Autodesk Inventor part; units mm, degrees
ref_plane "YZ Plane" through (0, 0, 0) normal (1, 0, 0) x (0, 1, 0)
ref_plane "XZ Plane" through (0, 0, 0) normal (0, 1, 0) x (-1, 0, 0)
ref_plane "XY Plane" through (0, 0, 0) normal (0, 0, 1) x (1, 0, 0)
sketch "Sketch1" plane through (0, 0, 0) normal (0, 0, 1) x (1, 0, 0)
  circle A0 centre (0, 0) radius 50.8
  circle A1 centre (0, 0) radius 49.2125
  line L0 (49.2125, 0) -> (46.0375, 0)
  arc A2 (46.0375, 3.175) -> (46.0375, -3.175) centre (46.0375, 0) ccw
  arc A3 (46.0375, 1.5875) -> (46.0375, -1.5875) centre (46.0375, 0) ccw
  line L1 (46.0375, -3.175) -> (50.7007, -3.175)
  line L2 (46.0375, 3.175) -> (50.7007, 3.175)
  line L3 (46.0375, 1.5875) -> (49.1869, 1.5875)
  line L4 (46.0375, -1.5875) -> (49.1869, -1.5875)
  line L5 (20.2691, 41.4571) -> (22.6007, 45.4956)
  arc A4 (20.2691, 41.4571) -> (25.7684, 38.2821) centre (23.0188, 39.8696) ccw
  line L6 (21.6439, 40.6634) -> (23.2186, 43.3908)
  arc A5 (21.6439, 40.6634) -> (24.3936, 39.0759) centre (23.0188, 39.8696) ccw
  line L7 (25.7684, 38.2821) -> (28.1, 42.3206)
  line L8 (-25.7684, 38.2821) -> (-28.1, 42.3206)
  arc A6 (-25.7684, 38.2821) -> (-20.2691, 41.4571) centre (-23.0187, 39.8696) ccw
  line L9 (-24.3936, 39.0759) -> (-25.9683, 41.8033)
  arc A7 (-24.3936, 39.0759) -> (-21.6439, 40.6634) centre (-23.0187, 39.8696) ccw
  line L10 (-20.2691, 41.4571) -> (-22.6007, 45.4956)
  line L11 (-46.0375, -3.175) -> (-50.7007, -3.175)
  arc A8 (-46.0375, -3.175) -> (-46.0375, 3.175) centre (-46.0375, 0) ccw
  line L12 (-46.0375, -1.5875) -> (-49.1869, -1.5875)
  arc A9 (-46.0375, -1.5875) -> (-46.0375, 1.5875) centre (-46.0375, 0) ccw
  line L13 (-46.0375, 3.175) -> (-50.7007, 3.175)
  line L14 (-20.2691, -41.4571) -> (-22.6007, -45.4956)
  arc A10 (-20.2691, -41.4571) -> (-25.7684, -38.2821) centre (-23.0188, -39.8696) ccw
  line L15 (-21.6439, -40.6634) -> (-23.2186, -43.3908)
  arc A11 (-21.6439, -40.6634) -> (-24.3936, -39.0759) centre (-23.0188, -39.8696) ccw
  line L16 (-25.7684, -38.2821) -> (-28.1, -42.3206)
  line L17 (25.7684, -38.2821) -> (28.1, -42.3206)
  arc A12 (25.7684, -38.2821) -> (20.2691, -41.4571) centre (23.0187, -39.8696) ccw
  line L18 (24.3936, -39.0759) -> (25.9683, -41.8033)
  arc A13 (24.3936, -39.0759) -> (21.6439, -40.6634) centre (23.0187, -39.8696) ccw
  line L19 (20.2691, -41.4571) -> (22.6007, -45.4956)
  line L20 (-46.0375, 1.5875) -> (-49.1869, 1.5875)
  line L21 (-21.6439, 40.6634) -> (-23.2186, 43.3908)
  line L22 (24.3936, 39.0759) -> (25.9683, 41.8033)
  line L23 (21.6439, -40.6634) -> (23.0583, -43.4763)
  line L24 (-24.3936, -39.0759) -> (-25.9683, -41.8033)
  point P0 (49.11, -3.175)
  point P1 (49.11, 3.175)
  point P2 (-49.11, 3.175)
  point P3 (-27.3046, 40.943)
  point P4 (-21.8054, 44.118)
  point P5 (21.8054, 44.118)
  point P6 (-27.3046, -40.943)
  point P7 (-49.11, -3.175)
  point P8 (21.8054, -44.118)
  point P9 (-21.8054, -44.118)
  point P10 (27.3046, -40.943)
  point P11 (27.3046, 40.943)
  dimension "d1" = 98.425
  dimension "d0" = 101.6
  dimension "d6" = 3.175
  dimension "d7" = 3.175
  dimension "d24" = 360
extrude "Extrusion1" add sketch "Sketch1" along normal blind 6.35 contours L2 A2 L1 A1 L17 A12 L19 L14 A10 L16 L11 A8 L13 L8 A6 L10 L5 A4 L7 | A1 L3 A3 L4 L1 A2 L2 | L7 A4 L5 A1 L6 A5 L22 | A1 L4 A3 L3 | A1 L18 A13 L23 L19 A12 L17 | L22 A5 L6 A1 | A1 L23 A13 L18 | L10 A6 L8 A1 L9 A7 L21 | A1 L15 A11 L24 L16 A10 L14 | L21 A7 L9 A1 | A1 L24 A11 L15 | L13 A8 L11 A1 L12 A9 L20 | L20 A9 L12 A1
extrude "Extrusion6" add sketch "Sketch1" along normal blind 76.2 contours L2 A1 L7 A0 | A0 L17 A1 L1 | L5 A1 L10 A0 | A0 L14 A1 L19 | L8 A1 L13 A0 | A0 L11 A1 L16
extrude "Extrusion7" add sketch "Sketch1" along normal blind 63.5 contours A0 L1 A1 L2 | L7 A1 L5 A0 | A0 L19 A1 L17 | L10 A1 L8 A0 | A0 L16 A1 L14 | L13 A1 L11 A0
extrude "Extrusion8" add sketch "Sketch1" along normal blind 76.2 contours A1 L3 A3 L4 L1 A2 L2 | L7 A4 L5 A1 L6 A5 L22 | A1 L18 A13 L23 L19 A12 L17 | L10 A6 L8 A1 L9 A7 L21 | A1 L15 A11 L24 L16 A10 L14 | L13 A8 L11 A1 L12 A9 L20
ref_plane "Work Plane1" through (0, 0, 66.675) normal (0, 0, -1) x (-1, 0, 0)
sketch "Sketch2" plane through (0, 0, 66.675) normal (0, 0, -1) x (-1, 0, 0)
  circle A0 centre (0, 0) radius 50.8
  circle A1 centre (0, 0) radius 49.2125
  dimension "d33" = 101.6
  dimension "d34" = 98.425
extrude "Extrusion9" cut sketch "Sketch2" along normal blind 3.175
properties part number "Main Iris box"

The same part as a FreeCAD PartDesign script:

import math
import FreeCAD as App
import Part
import Sketcher

V = App.Vector
Q = App.Units.Quantity

doc = App.newDocument("Part")
params = doc.addObject("Spreadsheet::Sheet", "Params")
for row, (alias, value) in enumerate([
    ("sketch1_diameter", "3.875 in"),
    ("pad1_length", "0.25 in"),
    ("sketch2_radius", "2 in"),
    ("sketch2_radius2", "1.9375 in"),
    ("pad2_length", "3 in"),
    ("sketch3_radius", "2 in"),
    ("sketch3_radius2", "1.9375 in"),
    ("pad3_length", "2.5 in"),
    ("sketch4_radius", "1.9375 in"),
    ("sketch4_radius2", "0.125 in"),
    ("sketch4_radius3", "0.0625 in"),
    ("sketch4_width", "0.124 in"),
    ("sketch4_length", "0.124 in"),
    ("pad4_length", "3 in"),
    ("sketch5_diameter", "4 in"),
    ("sketch5_diameter2", "3.875 in"),
    ("pocket1_length", "0.125 in"),
], start=1):
    params.set(f"A{row}", alias)
    params.set(f"B{row}", "=" + value)
    params.setAlias(f"B{row}", alias)

body = doc.addObject("PartDesign::Body", "Body")
body.AllowCompound = True

sketch1 = doc.addObject("Sketcher::SketchObject", "Sketch")
body.addObject(sketch1)
sketch1.AttachmentSupport = (doc.XY_Plane, [""])
sketch1.MapMode = "FlatFace"
sketch1.addGeometry(Part.Circle(V(0, 0, 0), V(0, 0, 1), 49), False)
sketch1.addConstraint([
    Sketcher.Constraint("Coincident", 0, 3, -1, 1),
    Sketcher.Constraint("Diameter", 0, Q("3.875 in")),
])
sketch1.setExpression("Constraints[1]", "Params.sketch1_diameter")
pad1 = doc.addObject("PartDesign::Pad", "Pad")
body.addObject(pad1)
pad1.Profile = sketch1
pad1.setExpression("Length", "Params.pad1_length")

sketch2 = doc.addObject("Sketcher::SketchObject", "Sketch001")
body.addObject(sketch2)
sketch2.AttachmentSupport = (doc.XY_Plane, [""])
sketch2.MapMode = "FlatFace"
sketch2.addGeometry([
    Part.LineSegment(V(49.109974, 3.175, 0), V(50.7007, 3.175, 0)),
    Part.ArcOfCircle(Part.Circle(V(0, 0, 0), V(0, 0, 1), 50.8), math.radians(3.583321), math.radians(56.416665)),
    Part.LineSegment(V(28.1, 42.3206, 0), V(27.304636, 40.942972, 0)),
    Part.ArcOfCircle(Part.Circle(V(0, 0, 0), V(0, 0, 1), 49.2125), math.radians(3.699071), math.radians(56.300903)),
    Part.ArcOfCircle(Part.Circle(V(0, 0, 0), V(0, 0, 1), 50.8), math.radians(-56.416665), math.radians(-3.583321)),
    Part.LineSegment(V(50.7007, -3.175, 0), V(49.109974, -3.175, 0)),
    Part.ArcOfCircle(Part.Circle(V(0, 0, 0), V(0, 0, 1), 49.2125), math.radians(-56.300903), math.radians(-3.699071)),
    Part.LineSegment(V(27.304636, -40.942972, 0), V(28.1, -42.3206, 0)),
    Part.LineSegment(V(21.805346, 44.11799, 0), V(22.6007, 45.4956, 0)),
    Part.ArcOfCircle(Part.Circle(V(0, 0, 0), V(0, 0, 1), 50.8), math.radians(63.583343), math.radians(116.416657)),
    Part.LineSegment(V(-22.6007, 45.4956, 0), V(-21.805346, 44.11799, 0)),
    Part.ArcOfCircle(Part.Circle(V(0, 0, 0), V(0, 0, 1), 49.2125), math.radians(63.699084), math.radians(116.300916)),
    Part.ArcOfCircle(Part.Circle(V(0, 0, 0), V(0, 0, 1), 50.8), math.radians(-116.416657), math.radians(-63.583343)),
    Part.LineSegment(V(22.6007, -45.4956, 0), V(21.805346, -44.11799, 0)),
    Part.ArcOfCircle(Part.Circle(V(0, 0, 0), V(0, 0, 1), 49.2125), math.radians(-116.300916), math.radians(-63.699084)),
    Part.LineSegment(V(-21.805346, -44.11799, 0), V(-22.6007, -45.4956, 0)),
    Part.LineSegment(V(-27.304636, 40.942972, 0), V(-28.1, 42.3206, 0)),
    Part.ArcOfCircle(Part.Circle(V(0, 0, 0), V(0, 0, 1), 50.8), math.radians(123.583335), math.radians(176.416679)),
    Part.LineSegment(V(-50.7007, 3.175, 0), V(-49.109974, 3.175, 0)),
    Part.ArcOfCircle(Part.Circle(V(0, 0, 0), V(0, 0, 1), 49.2125), math.radians(123.699097), math.radians(176.300929)),
    Part.ArcOfCircle(Part.Circle(V(0, 0, 0), V(0, 0, 1), 50.8), math.radians(-176.416679), math.radians(-123.583335)),
    Part.LineSegment(V(-28.1, -42.3206, 0), V(-27.304636, -40.942972, 0)),
    Part.ArcOfCircle(Part.Circle(V(0, 0, 0), V(0, 0, 1), 49.2125), math.radians(-176.300929), math.radians(-123.699097)),
    Part.LineSegment(V(-49.109974, -3.175, 0), V(-50.7007, -3.175, 0)),
], False)
sketch2.addConstraint([
    Sketcher.Constraint("Coincident", 0, 2, 1, 1),
    Sketcher.Constraint("Coincident", 1, 2, 2, 1),
    Sketcher.Constraint("Coincident", 2, 2, 3, 2),
    Sketcher.Constraint("Coincident", 3, 1, 0, 1),
    Sketcher.Constraint("Coincident", 4, 2, 5, 1),
    Sketcher.Constraint("Coincident", 5, 2, 6, 2),
    Sketcher.Constraint("Coincident", 6, 1, 7, 1),
    Sketcher.Constraint("Coincident", 7, 2, 4, 1),
    Sketcher.Constraint("Coincident", 8, 2, 9, 1),
    Sketcher.Constraint("Coincident", 9, 2, 10, 1),
    Sketcher.Constraint("Coincident", 10, 2, 11, 2),
    Sketcher.Constraint("Coincident", 11, 1, 8, 1),
    Sketcher.Constraint("Coincident", 12, 2, 13, 1),
    Sketcher.Constraint("Coincident", 13, 2, 14, 2),
    Sketcher.Constraint("Coincident", 14, 1, 15, 1),
    Sketcher.Constraint("Coincident", 15, 2, 12, 1),
    Sketcher.Constraint("Coincident", 16, 2, 17, 1),
    Sketcher.Constraint("Coincident", 17, 2, 18, 1),
    Sketcher.Constraint("Coincident", 18, 2, 19, 2),
    Sketcher.Constraint("Coincident", 19, 1, 16, 1),
    Sketcher.Constraint("Coincident", 20, 2, 21, 1),
    Sketcher.Constraint("Coincident", 21, 2, 22, 2),
    Sketcher.Constraint("Coincident", 22, 1, 23, 1),
    Sketcher.Constraint("Coincident", 23, 2, 20, 1),
    Sketcher.Constraint("Horizontal", 0),
    Sketcher.Constraint("Horizontal", 5),
    Sketcher.Constraint("Horizontal", 18),
    Sketcher.Constraint("Horizontal", 23),
    Sketcher.Constraint("Coincident", 1, 3, -1, 1),
    Sketcher.Constraint("Coincident", 3, 3, -1, 1),
    Sketcher.Constraint("Coincident", 4, 3, -1, 1),
    Sketcher.Constraint("Coincident", 6, 3, -1, 1),
    Sketcher.Constraint("Coincident", 9, 3, -1, 1),
    Sketcher.Constraint("Coincident", 11, 3, -1, 1),
    Sketcher.Constraint("Coincident", 12, 3, -1, 1),
    Sketcher.Constraint("Coincident", 14, 3, -1, 1),
    Sketcher.Constraint("Coincident", 17, 3, -1, 1),
    Sketcher.Constraint("Coincident", 19, 3, -1, 1),
    Sketcher.Constraint("Coincident", 20, 3, -1, 1),
    Sketcher.Constraint("Coincident", 22, 3, -1, 1),
    Sketcher.Constraint("Equal", 1, 4),
    Sketcher.Constraint("Equal", 3, 6),
    Sketcher.Constraint("Equal", 4, 9),
    Sketcher.Constraint("Equal", 6, 11),
    Sketcher.Constraint("Equal", 9, 12),
    Sketcher.Constraint("Equal", 11, 14),
    Sketcher.Constraint("Equal", 12, 17),
    Sketcher.Constraint("Equal", 14, 19),
    Sketcher.Constraint("Equal", 17, 20),
    Sketcher.Constraint("Equal", 19, 22),
    Sketcher.Constraint("Parallel", 2, 8),
    Sketcher.Constraint("Parallel", 7, 10),
    Sketcher.Constraint("Parallel", 10, 13),
    Sketcher.Constraint("Parallel", 8, 15),
    Sketcher.Constraint("Parallel", 13, 16),
    Sketcher.Constraint("Parallel", 15, 21),
    Sketcher.Constraint("Horizontal", 8, 2, 9, 2),
    Sketcher.Constraint("Horizontal", 10, 2, 11, 1),
    Sketcher.Constraint("Horizontal", 13, 2, 14, 1),
    Sketcher.Constraint("Horizontal", 1, 2, 16, 2),
    Sketcher.Constraint("Horizontal", 3, 1, 17, 2),
    Sketcher.Constraint("Horizontal", 7, 2, 20, 2),
    Sketcher.Constraint("Horizontal", 5, 2, 22, 1),
    Sketcher.Constraint("Vertical", 0, 2, 4, 2),
    Sketcher.Constraint("Vertical", 2, 2, 6, 1),
    Sketcher.Constraint("Vertical", 8, 2, 12, 2),
    Sketcher.Constraint("Equal", 7, 8),
    Sketcher.Constraint("Radius", 1, Q("2 in")),
    Sketcher.Constraint("Radius", 3, Q("1.9375 in")),
    Sketcher.Constraint("DistanceY", -1, 1, 0, 2, Q("0.125 in")),
    Sketcher.Constraint("Angle", 2, Q("-119.9997 deg")),
    Sketcher.Constraint("DistanceY", 1, 2, 8, 2, Q("0.125 in")),
])
sketch2.setExpression("Constraints[67]", "Params.sketch2_radius")
sketch2.setExpression("Constraints[68]", "Params.sketch2_radius2")
pad2 = doc.addObject("PartDesign::Pad", "Pad001")
body.addObject(pad2)
pad2.Profile = sketch2
pad2.setExpression("Length", "Params.pad2_length")

sketch3 = doc.addObject("Sketcher::SketchObject", "Sketch002")
body.addObject(sketch3)
sketch3.AttachmentSupport = (doc.XY_Plane, [""])
sketch3.MapMode = "FlatFace"
sketch3.addGeometry([
    Part.ArcOfCircle(Part.Circle(V(0, 0, 0), V(0, 0, 1), 50.8), math.radians(-3.58), math.radians(3.58)),
    Part.LineSegment(V(50.7, 3.2, 0), V(49.1, 3.2, 0)),
    Part.ArcOfCircle(Part.Circle(V(0, 0, 0), V(0, 0, 1), 49.2), math.radians(-3.7), math.radians(3.7)),
    Part.LineSegment(V(49.1, -3.2, 0), V(50.7, -3.2, 0)),
    Part.LineSegment(V(27.3, 40.9, 0), V(28.1, 42.3, 0)),
    Part.ArcOfCircle(Part.Circle(V(0, 0, 0), V(0, 0, 1), 50.8), math.radians(56.42), math.radians(63.58)),
    Part.LineSegment(V(22.6, 45.5, 0), V(21.8, 44.1, 0)),
    Part.ArcOfCircle(Part.Circle(V(0, 0, 0), V(0, 0, 1), 49.2), math.radians(56.3), math.radians(63.7)),
    Part.ArcOfCircle(Part.Circle(V(0, 0, 0), V(0, 0, 1), 50.8), math.radians(-63.58), math.radians(-56.42)),
    Part.LineSegment(V(28.1, -42.3, 0), V(27.3, -40.9, 0)),
    Part.ArcOfCircle(Part.Circle(V(0, 0, 0), V(0, 0, 1), 49.2), math.radians(-63.7), math.radians(-56.3)),
    Part.LineSegment(V(21.8, -44.1, 0), V(22.6, -45.5, 0)),
    Part.LineSegment(V(-21.8, 44.1, 0), V(-22.6, 45.5, 0)),
    Part.ArcOfCircle(Part.Circle(V(0, 0, 0), V(0, 0, 1), 50.8), math.radians(116.42), math.radians(123.58)),
    Part.LineSegment(V(-28.1, 42.3, 0), V(-27.3, 40.9, 0)),
    Part.ArcOfCircle(Part.Circle(V(0, 0, 0), V(0, 0, 1), 49.2), math.radians(116.3), math.radians(123.7)),
    Part.ArcOfCircle(Part.Circle(V(0, 0, 0), V(0, 0, 1), 50.8), math.radians(-123.58), math.radians(-116.42)),
    Part.LineSegment(V(-22.6, -45.5, 0), V(-21.8, -44.1, 0)),
    Part.ArcOfCircle(Part.Circle(V(0, 0, 0), V(0, 0, 1), 49.2), math.radians(-123.7), math.radians(-116.3)),
    Part.LineSegment(V(-27.3, -40.9, 0), V(-28.1, -42.3, 0)),
    Part.LineSegment(V(-49.1, 3.2, 0), V(-50.7, 3.2, 0)),
    Part.ArcOfCircle(Part.Circle(V(0, 0, 0), V(0, 0, 1), 50.8), math.radians(176.42), math.radians(183.58)),
    Part.LineSegment(V(-50.7, -3.2, 0), V(-49.1, -3.2, 0)),
    Part.ArcOfCircle(Part.Circle(V(0, 0, 0), V(0, 0, 1), 49.2), math.radians(176.3), math.radians(183.7)),
], False)
sketch3.addConstraint([
    Sketcher.Constraint("Coincident", 0, 2, 1, 1),
    Sketcher.Constraint("Coincident", 1, 2, 2, 2),
    Sketcher.Constraint("Coincident", 2, 1, 3, 1),
    Sketcher.Constraint("Coincident", 3, 2, 0, 1),
    Sketcher.Constraint("Coincident", 4, 2, 5, 1),
    Sketcher.Constraint("Coincident", 5, 2, 6, 1),
    Sketcher.Constraint("Coincident", 6, 2, 7, 2),
    Sketcher.Constraint("Coincident", 7, 1, 4, 1),
    Sketcher.Constraint("Coincident", 8, 2, 9, 1),
    Sketcher.Constraint("Coincident", 9, 2, 10, 2),
    Sketcher.Constraint("Coincident", 10, 1, 11, 1),
    Sketcher.Constraint("Coincident", 11, 2, 8, 1),
    Sketcher.Constraint("Coincident", 12, 2, 13, 1),
    Sketcher.Constraint("Coincident", 13, 2, 14, 1),
    Sketcher.Constraint("Coincident", 14, 2, 15, 2),
    Sketcher.Constraint("Coincident", 15, 1, 12, 1),
    Sketcher.Constraint("Coincident", 16, 2, 17, 1),
    Sketcher.Constraint("Coincident", 17, 2, 18, 2),
    Sketcher.Constraint("Coincident", 18, 1, 19, 1),
    Sketcher.Constraint("Coincident", 19, 2, 16, 1),
    Sketcher.Constraint("Coincident", 20, 2, 21, 1),
    Sketcher.Constraint("Coincident", 21, 2, 22, 1),
    Sketcher.Constraint("Coincident", 22, 2, 23, 2),
    Sketcher.Constraint("Coincident", 23, 1, 20, 1),
    Sketcher.Constraint("Horizontal", 1),
    Sketcher.Constraint("Horizontal", 3),
    Sketcher.Constraint("Horizontal", 20),
    Sketcher.Constraint("Horizontal", 22),
    Sketcher.Constraint("Coincident", 0, 3, -1, 1),
    Sketcher.Constraint("Coincident", 2, 3, -1, 1),
    Sketcher.Constraint("Coincident", 5, 3, -1, 1),
    Sketcher.Constraint("Coincident", 7, 3, -1, 1),
    Sketcher.Constraint("Coincident", 8, 3, -1, 1),
    Sketcher.Constraint("Coincident", 10, 3, -1, 1),
    Sketcher.Constraint("Coincident", 13, 3, -1, 1),
    Sketcher.Constraint("Coincident", 15, 3, -1, 1),
    Sketcher.Constraint("Coincident", 16, 3, -1, 1),
    Sketcher.Constraint("Coincident", 18, 3, -1, 1),
    Sketcher.Constraint("Coincident", 21, 3, -1, 1),
    Sketcher.Constraint("Coincident", 23, 3, -1, 1),
    Sketcher.Constraint("Equal", 0, 5),
    Sketcher.Constraint("Equal", 2, 7),
    Sketcher.Constraint("Equal", 5, 8),
    Sketcher.Constraint("Equal", 7, 10),
    Sketcher.Constraint("Equal", 8, 13),
    Sketcher.Constraint("Equal", 10, 15),
    Sketcher.Constraint("Equal", 13, 16),
    Sketcher.Constraint("Equal", 15, 18),
    Sketcher.Constraint("Equal", 16, 21),
    Sketcher.Constraint("Equal", 18, 23),
    Sketcher.Constraint("Parallel", 4, 6),
    Sketcher.Constraint("Parallel", 9, 11),
    Sketcher.Constraint("Parallel", 11, 12),
    Sketcher.Constraint("Parallel", 12, 14),
    Sketcher.Constraint("Parallel", 6, 17),
    Sketcher.Constraint("Parallel", 17, 19),
    Sketcher.Constraint("Horizontal", 5, 2, 12, 2),
    Sketcher.Constraint("Horizontal", 4, 2, 13, 2),
    Sketcher.Constraint("Horizontal", 7, 1, 14, 2),
    Sketcher.Constraint("Horizontal", 11, 2, 16, 2),
    Sketcher.Constraint("Horizontal", 9, 2, 18, 1),
    Sketcher.Constraint("Horizontal", 1, 2, 20, 2),
    Sketcher.Constraint("Horizontal", 3, 2, 21, 2),
    Sketcher.Constraint("Vertical", 1, 2, 2, 1),
    Sketcher.Constraint("Vertical", 4, 2, 8, 2),
    Sketcher.Constraint("Vertical", 6, 2, 10, 1),
    Sketcher.Constraint("Equal", 4, 6),
    Sketcher.Constraint("Radius", 0, Q("2 in")),
    Sketcher.Constraint("Radius", 2, Q("1.9375 in")),
    Sketcher.Constraint("DistanceY", -1, 1, 0, 2, Q("0.125 in")),
    Sketcher.Constraint("Angle", 4, Q("60.0003 deg")),
    Sketcher.Constraint("DistanceY", 4, 2, 5, 2, Q("0.125 in")),
])
sketch3.setExpression("Constraints[67]", "Params.sketch3_radius")
sketch3.setExpression("Constraints[68]", "Params.sketch3_radius2")
pad3 = doc.addObject("PartDesign::Pad", "Pad002")
body.addObject(pad3)
pad3.Profile = sketch3
pad3.setExpression("Length", "Params.pad3_length")

sketch4 = doc.addObject("Sketcher::SketchObject", "Sketch003")
body.addObject(sketch4)
sketch4.AttachmentSupport = (doc.XY_Plane, [""])
sketch4.MapMode = "FlatFace"
sketch4.addGeometry([
    Part.ArcOfCircle(Part.Circle(V(0, 0, 0), V(0, 0, 1), 49.2), math.radians(1.85), math.radians(3.7)),
    Part.LineSegment(V(49.1, 3.2, 0), V(46, 3.2, 0)),
    Part.ArcOfCircle(Part.Circle(V(46, 0, 0), V(0, 0, 1), 3.2), math.radians(90), math.radians(270)),
    Part.LineSegment(V(46, -3.2, 0), V(49.1, -3.2, 0)),
    Part.ArcOfCircle(Part.Circle(V(0, 0, 0), V(0, 0, 1), 49.2), math.radians(-3.7), math.radians(-1.85)),
    Part.LineSegment(V(49.2, -1.6, 0), V(46, -1.6, 0)),
    Part.ArcOfCircle(Part.Circle(V(46, 0, 0), V(0, 0, 1), 1.6), math.radians(90), math.radians(270)),
    Part.LineSegment(V(46, 1.6, 0), V(49.2, 1.6, 0)),
    Part.LineSegment(V(25.8, 38.3, 0), V(27.3, 40.9, 0)),
    Part.ArcOfCircle(Part.Circle(V(0, 0, 0), V(0, 0, 1), 49.2), math.radians(56.3), math.radians(58.15)),
    Part.LineSegment(V(26, 41.8, 0), V(24.4, 39.1, 0)),
    Part.ArcOfCircle(Part.Circle(V(23, 39.9, 0), V(0, 0, 1), 1.6), math.radians(150), math.radians(330)),
    Part.LineSegment(V(21.6, 40.7, 0), V(23.2, 43.4, 0)),
    Part.ArcOfCircle(Part.Circle(V(0, 0, 0), V(0, 0, 1), 49.2), math.radians(61.85), math.radians(63.7)),
    Part.LineSegment(V(21.8, 44.1, 0), V(20.3, 41.5, 0)),
    Part.ArcOfCircle(Part.Circle(V(23, 39.9, 0), V(0, 0, 1), 3.2), math.radians(150), math.radians(330)),
    Part.ArcOfCircle(Part.Circle(V(0, 0, 0), V(0, 0, 1), 49.2), math.radians(-58.15), math.radians(-56.3)),
    Part.LineSegment(V(27.3, -40.9, 0), V(25.8, -38.3, 0)),
    Part.ArcOfCircle(Part.Circle(V(23, -39.9, 0), V(0, 0, 1), 3.2), math.radians(30), math.radians(210)),
    Part.LineSegment(V(20.3, -41.5, 0), V(21.8, -44.1, 0)),
    Part.ArcOfCircle(Part.Circle(V(0, 0, 0), V(0, 0, 1), 49.2), math.radians(-63.7), math.radians(-62.06)),
    Part.LineSegment(V(23.1, -43.5, 0), V(21.6, -40.7, 0)),
    Part.ArcOfCircle(Part.Circle(V(23, -39.9, 0), V(0, 0, 1), 1.6), math.radians(30), math.radians(210)),
    Part.LineSegment(V(24.4, -39.1, 0), V(26, -41.8, 0)),
    Part.LineSegment(V(-20.3, 41.5, 0), V(-21.8, 44.1, 0)),
    Part.ArcOfCircle(Part.Circle(V(0, 0, 0), V(0, 0, 1), 49.2), math.radians(116.3), math.radians(118.15)),
    Part.LineSegment(V(-23.2, 43.4, 0), V(-21.6, 40.7, 0)),
    Part.ArcOfCircle(Part.Circle(V(-23, 39.9, 0), V(0, 0, 1), 1.6), math.radians(-150), math.radians(30)),
    Part.LineSegment(V(-24.4, 39.1, 0), V(-26, 41.8, 0)),
    Part.ArcOfCircle(Part.Circle(V(0, 0, 0), V(0, 0, 1), 49.2), math.radians(121.85), math.radians(123.7)),
    Part.LineSegment(V(-27.3, 40.9, 0), V(-25.8, 38.3, 0)),
    Part.ArcOfCircle(Part.Circle(V(-23, 39.9, 0), V(0, 0, 1), 3.2), math.radians(-150), math.radians(30)),
    Part.ArcOfCircle(Part.Circle(V(0, 0, 0), V(0, 0, 1), 49.2), math.radians(-118.15), math.radians(-116.3)),
    Part.LineSegment(V(-21.8, -44.1, 0), V(-20.3, -41.5, 0)),
    Part.ArcOfCircle(Part.Circle(V(-23, -39.9, 0), V(0, 0, 1), 3.2), math.radians(-30), math.radians(150)),
    Part.LineSegment(V(-25.8, -38.3, 0), V(-27.3, -40.9, 0)),
    Part.ArcOfCircle(Part.Circle(V(0, 0, 0), V(0, 0, 1), 49.2), math.radians(-123.7), math.radians(-121.85)),
    Part.LineSegment(V(-26, -41.8, 0), V(-24.4, -39.1, 0)),
    Part.ArcOfCircle(Part.Circle(V(-23, -39.9, 0), V(0, 0, 1), 1.6), math.radians(-30), math.radians(150)),
    Part.LineSegment(V(-21.6, -40.7, 0), V(-23.2, -43.4, 0)),
    Part.LineSegment(V(-46, 3.2, 0), V(-49.1, 3.2, 0)),
    Part.ArcOfCircle(Part.Circle(V(0, 0, 0), V(0, 0, 1), 49.2), math.radians(176.3), math.radians(178.15)),
    Part.LineSegment(V(-49.2, 1.6, 0), V(-46, 1.6, 0)),
    Part.ArcOfCircle(Part.Circle(V(-46, 0, 0), V(0, 0, 1), 1.6), math.radians(-90), math.radians(90)),
    Part.LineSegment(V(-46, -1.6, 0), V(-49.2, -1.6, 0)),
    Part.ArcOfCircle(Part.Circle(V(0, 0, 0), V(0, 0, 1), 49.2), math.radians(-178.15), math.radians(-176.3)),
    Part.LineSegment(V(-49.1, -3.2, 0), V(-46, -3.2, 0)),
    Part.ArcOfCircle(Part.Circle(V(-46, 0, 0), V(0, 0, 1), 3.2), math.radians(-90), math.radians(90)),
], False)
sketch4.addConstraint([
    Sketcher.Constraint("Coincident", 0, 2, 1, 1),
    Sketcher.Constraint("Tangent", 1, 2, 2, 1),
    Sketcher.Constraint("Tangent", 2, 2, 3, 1),
    Sketcher.Constraint("Coincident", 3, 2, 4, 1),
    Sketcher.Constraint("Coincident", 4, 2, 5, 1),
    Sketcher.Constraint("Tangent", 5, 2, 6, 2),
    Sketcher.Constraint("Tangent", 6, 1, 7, 1),
    Sketcher.Constraint("Coincident", 7, 2, 0, 1),
    Sketcher.Constraint("Coincident", 8, 2, 9, 1),
    Sketcher.Constraint("Coincident", 9, 2, 10, 1),
    Sketcher.Constraint("Tangent", 10, 2, 11, 2),
    Sketcher.Constraint("Tangent", 11, 1, 12, 1),
    Sketcher.Constraint("Coincident", 12, 2, 13, 1),
    Sketcher.Constraint("Coincident", 13, 2, 14, 1),
    Sketcher.Constraint("Tangent", 14, 2, 15, 1),
    Sketcher.Constraint("Tangent", 15, 2, 8, 1),
    Sketcher.Constraint("Coincident", 16, 2, 17, 1),
    Sketcher.Constraint("Tangent", 17, 2, 18, 1),
    Sketcher.Constraint("Tangent", 18, 2, 19, 1),
    Sketcher.Constraint("Coincident", 19, 2, 20, 1),
    Sketcher.Constraint("Coincident", 20, 2, 21, 1),
    Sketcher.Constraint("Coincident", 21, 2, 22, 2),
    Sketcher.Constraint("Tangent", 22, 1, 23, 1),
    Sketcher.Constraint("Coincident", 23, 2, 16, 1),
    Sketcher.Constraint("Coincident", 24, 2, 25, 1),
    Sketcher.Constraint("Coincident", 25, 2, 26, 1),
    Sketcher.Constraint("Tangent", 26, 2, 27, 2),
    Sketcher.Constraint("Tangent", 27, 1, 28, 1),
    Sketcher.Constraint("Coincident", 28, 2, 29, 1),
    Sketcher.Constraint("Coincident", 29, 2, 30, 1),
    Sketcher.Constraint("Tangent", 30, 2, 31, 1),
    Sketcher.Constraint("Tangent", 31, 2, 24, 1),
    Sketcher.Constraint("Coincident", 32, 2, 33, 1),
    Sketcher.Constraint("Tangent", 33, 2, 34, 1),
    Sketcher.Constraint("Tangent", 34, 2, 35, 1),
    Sketcher.Constraint("Coincident", 35, 2, 36, 1),
    Sketcher.Constraint("Coincident", 36, 2, 37, 1),
    Sketcher.Constraint("Tangent", 37, 2, 38, 2),
    Sketcher.Constraint("Tangent", 38, 1, 39, 1),
    Sketcher.Constraint("Coincident", 39, 2, 32, 1),
    Sketcher.Constraint("Coincident", 40, 2, 41, 1),
    Sketcher.Constraint("Coincident", 41, 2, 42, 1),
    Sketcher.Constraint("Tangent", 42, 2, 43, 2),
    Sketcher.Constraint("Tangent", 43, 1, 44, 1),
    Sketcher.Constraint("Coincident", 44, 2, 45, 1),
    Sketcher.Constraint("Coincident", 45, 2, 46, 1),
    Sketcher.Constraint("Tangent", 46, 2, 47, 1),
    Sketcher.Constraint("Tangent", 47, 2, 40, 1),
    Sketcher.Constraint("Horizontal", 1),
    Sketcher.Constraint("Horizontal", 3),
    Sketcher.Constraint("Horizontal", 5),
    Sketcher.Constraint("Horizontal", 7),
    Sketcher.Constraint("Horizontal", 40),
    Sketcher.Constraint("Horizontal", 42),
    Sketcher.Constraint("Horizontal", 44),
    Sketcher.Constraint("Horizontal", 46),
    Sketcher.Constraint("Coincident", 0, 3, -1, 1),
    Sketcher.Constraint("Coincident", 4, 3, -1, 1),
    Sketcher.Constraint("Coincident", 9, 3, -1, 1),
    Sketcher.Constraint("Coincident", 13, 3, -1, 1),
    Sketcher.Constraint("Coincident", 16, 3, -1, 1),
    Sketcher.Constraint("Coincident", 20, 3, -1, 1),
    Sketcher.Constraint("Coincident", 25, 3, -1, 1),
    Sketcher.Constraint("Coincident", 29, 3, -1, 1),
    Sketcher.Constraint("Coincident", 32, 3, -1, 1),
    Sketcher.Constraint("Coincident", 36, 3, -1, 1),
    Sketcher.Constraint("Coincident", 41, 3, -1, 1),
    Sketcher.Constraint("Coincident", 45, 3, -1, 1),
    Sketcher.Constraint("Coincident", 6, 3, 2, 3),
    Sketcher.Constraint("Coincident", 15, 3, 11, 3),
    Sketcher.Constraint("Coincident", 22, 3, 18, 3),
    Sketcher.Constraint("Coincident", 31, 3, 27, 3),
    Sketcher.Constraint("Coincident", 38, 3, 34, 3),
    Sketcher.Constraint("Coincident", 47, 3, 43, 3),
    Sketcher.Constraint("Equal", 0, 4),
    Sketcher.Constraint("Equal", 4, 9),
    Sketcher.Constraint("Equal", 6, 11),
    Sketcher.Constraint("Equal", 9, 13),
    Sketcher.Constraint("Equal", 2, 15),
    Sketcher.Constraint("Equal", 13, 16),
    Sketcher.Constraint("Equal", 15, 18),
    Sketcher.Constraint("Equal", 16, 20),
    Sketcher.Constraint("Equal", 11, 22),
    Sketcher.Constraint("Equal", 20, 25),
    Sketcher.Constraint("Equal", 22, 27),
    Sketcher.Constraint("Equal", 25, 29),
    Sketcher.Constraint("Equal", 18, 31),
    Sketcher.Constraint("Equal", 29, 32),
    Sketcher.Constraint("Equal", 31, 34),
    Sketcher.Constraint("Equal", 32, 36),
    Sketcher.Constraint("Equal", 27, 38),
    Sketcher.Constraint("Equal", 36, 41),
    Sketcher.Constraint("Equal", 38, 43),
    Sketcher.Constraint("Equal", 41, 45),
    Sketcher.Constraint("Equal", 34, 47),
    Sketcher.Constraint("Symmetric", 18, 3, 27, 3, -1, 1),
    Sketcher.Constraint("Symmetric", 11, 3, 34, 3, -1, 1),
    Sketcher.Constraint("Symmetric", 2, 3, 43, 3, -1, 1),
    Sketcher.Constraint("Symmetric", 11, 3, 27, 3, -2),
    Sketcher.Constraint("PointOnObject", 2, 3, -1),
    Sketcher.Constraint("Parallel", 8, 10),
    Sketcher.Constraint("Parallel", 10, 12),
    Sketcher.Constraint("Parallel", 12, 14),
    Sketcher.Constraint("Parallel", 17, 19),
    Sketcher.Constraint("Parallel", 19, 23),
    Sketcher.Constraint("Parallel", 23, 24),
    Sketcher.Constraint("Parallel", 24, 26),
    Sketcher.Constraint("Parallel", 26, 28),
    Sketcher.Constraint("Parallel", 28, 30),
    Sketcher.Constraint("Parallel", 14, 33),
    Sketcher.Constraint("Parallel", 33, 35),
    Sketcher.Constraint("Parallel", 35, 37),
    Sketcher.Constraint("Parallel", 37, 39),
    Sketcher.Constraint("Horizontal", 13, 2, 24, 2),
    Sketcher.Constraint("Horizontal", 21, 2, 38, 1),
    Sketcher.Constraint("Equal", 10, 12),
    Sketcher.Constraint("Radius", 0, Q("1.9375 in")),
    Sketcher.Constraint("Radius", 2, Q("0.125 in")),
    Sketcher.Constraint("Radius", 6, Q("0.0625 in")),
    Sketcher.Constraint("Angle", 8, Q("60.0003 deg")),
    Sketcher.Constraint("DistanceX", 5, 2, 5, 1, Q("0.124 in")),
    Sketcher.Constraint("Distance", 10, Q("0.124 in")),
    Sketcher.Constraint("DistanceX", -1, 1, 20, 2, Q("0.9078 in")),
])
sketch4.setExpression("Constraints[116]", "Params.sketch4_radius")
sketch4.setExpression("Constraints[117]", "Params.sketch4_radius2")
sketch4.setExpression("Constraints[118]", "Params.sketch4_radius3")
sketch4.setExpression("Constraints[120]", "Params.sketch4_width")
sketch4.setExpression("Constraints[121]", "Params.sketch4_length")
pad4 = doc.addObject("PartDesign::Pad", "Pad003")
body.addObject(pad4)
pad4.Profile = sketch4
pad4.setExpression("Length", "Params.pad4_length")

sketch5 = doc.addObject("Sketcher::SketchObject", "Sketch004")
body.addObject(sketch5)
sketch5.AttachmentSupport = (doc.XY_Plane, [""])
sketch5.MapMode = "FlatFace"
sketch5.AttachmentOffset = App.Placement(V(0, 0, 2.625 * 25.4), App.Rotation())
sketch5.addGeometry([
    Part.Circle(V(0, 0, 0), V(0, 0, 1), 51),
    Part.Circle(V(0, 0, 0), V(0, 0, 1), 49),
], False)
sketch5.addConstraint([
    Sketcher.Constraint("Coincident", 0, 3, -1, 1),
    Sketcher.Constraint("Coincident", 1, 3, -1, 1),
    Sketcher.Constraint("Diameter", 0, Q("4 in")),
    Sketcher.Constraint("Diameter", 1, Q("3.875 in")),
])
sketch5.setExpression("Constraints[2]", "Params.sketch5_diameter")
sketch5.setExpression("Constraints[3]", "Params.sketch5_diameter2")
pocket1 = doc.addObject("PartDesign::Pocket", "Pocket")
body.addObject(pocket1)
pocket1.Profile = sketch5
pocket1.setExpression("Length", "Params.pocket1_length")

doc.recompute()
